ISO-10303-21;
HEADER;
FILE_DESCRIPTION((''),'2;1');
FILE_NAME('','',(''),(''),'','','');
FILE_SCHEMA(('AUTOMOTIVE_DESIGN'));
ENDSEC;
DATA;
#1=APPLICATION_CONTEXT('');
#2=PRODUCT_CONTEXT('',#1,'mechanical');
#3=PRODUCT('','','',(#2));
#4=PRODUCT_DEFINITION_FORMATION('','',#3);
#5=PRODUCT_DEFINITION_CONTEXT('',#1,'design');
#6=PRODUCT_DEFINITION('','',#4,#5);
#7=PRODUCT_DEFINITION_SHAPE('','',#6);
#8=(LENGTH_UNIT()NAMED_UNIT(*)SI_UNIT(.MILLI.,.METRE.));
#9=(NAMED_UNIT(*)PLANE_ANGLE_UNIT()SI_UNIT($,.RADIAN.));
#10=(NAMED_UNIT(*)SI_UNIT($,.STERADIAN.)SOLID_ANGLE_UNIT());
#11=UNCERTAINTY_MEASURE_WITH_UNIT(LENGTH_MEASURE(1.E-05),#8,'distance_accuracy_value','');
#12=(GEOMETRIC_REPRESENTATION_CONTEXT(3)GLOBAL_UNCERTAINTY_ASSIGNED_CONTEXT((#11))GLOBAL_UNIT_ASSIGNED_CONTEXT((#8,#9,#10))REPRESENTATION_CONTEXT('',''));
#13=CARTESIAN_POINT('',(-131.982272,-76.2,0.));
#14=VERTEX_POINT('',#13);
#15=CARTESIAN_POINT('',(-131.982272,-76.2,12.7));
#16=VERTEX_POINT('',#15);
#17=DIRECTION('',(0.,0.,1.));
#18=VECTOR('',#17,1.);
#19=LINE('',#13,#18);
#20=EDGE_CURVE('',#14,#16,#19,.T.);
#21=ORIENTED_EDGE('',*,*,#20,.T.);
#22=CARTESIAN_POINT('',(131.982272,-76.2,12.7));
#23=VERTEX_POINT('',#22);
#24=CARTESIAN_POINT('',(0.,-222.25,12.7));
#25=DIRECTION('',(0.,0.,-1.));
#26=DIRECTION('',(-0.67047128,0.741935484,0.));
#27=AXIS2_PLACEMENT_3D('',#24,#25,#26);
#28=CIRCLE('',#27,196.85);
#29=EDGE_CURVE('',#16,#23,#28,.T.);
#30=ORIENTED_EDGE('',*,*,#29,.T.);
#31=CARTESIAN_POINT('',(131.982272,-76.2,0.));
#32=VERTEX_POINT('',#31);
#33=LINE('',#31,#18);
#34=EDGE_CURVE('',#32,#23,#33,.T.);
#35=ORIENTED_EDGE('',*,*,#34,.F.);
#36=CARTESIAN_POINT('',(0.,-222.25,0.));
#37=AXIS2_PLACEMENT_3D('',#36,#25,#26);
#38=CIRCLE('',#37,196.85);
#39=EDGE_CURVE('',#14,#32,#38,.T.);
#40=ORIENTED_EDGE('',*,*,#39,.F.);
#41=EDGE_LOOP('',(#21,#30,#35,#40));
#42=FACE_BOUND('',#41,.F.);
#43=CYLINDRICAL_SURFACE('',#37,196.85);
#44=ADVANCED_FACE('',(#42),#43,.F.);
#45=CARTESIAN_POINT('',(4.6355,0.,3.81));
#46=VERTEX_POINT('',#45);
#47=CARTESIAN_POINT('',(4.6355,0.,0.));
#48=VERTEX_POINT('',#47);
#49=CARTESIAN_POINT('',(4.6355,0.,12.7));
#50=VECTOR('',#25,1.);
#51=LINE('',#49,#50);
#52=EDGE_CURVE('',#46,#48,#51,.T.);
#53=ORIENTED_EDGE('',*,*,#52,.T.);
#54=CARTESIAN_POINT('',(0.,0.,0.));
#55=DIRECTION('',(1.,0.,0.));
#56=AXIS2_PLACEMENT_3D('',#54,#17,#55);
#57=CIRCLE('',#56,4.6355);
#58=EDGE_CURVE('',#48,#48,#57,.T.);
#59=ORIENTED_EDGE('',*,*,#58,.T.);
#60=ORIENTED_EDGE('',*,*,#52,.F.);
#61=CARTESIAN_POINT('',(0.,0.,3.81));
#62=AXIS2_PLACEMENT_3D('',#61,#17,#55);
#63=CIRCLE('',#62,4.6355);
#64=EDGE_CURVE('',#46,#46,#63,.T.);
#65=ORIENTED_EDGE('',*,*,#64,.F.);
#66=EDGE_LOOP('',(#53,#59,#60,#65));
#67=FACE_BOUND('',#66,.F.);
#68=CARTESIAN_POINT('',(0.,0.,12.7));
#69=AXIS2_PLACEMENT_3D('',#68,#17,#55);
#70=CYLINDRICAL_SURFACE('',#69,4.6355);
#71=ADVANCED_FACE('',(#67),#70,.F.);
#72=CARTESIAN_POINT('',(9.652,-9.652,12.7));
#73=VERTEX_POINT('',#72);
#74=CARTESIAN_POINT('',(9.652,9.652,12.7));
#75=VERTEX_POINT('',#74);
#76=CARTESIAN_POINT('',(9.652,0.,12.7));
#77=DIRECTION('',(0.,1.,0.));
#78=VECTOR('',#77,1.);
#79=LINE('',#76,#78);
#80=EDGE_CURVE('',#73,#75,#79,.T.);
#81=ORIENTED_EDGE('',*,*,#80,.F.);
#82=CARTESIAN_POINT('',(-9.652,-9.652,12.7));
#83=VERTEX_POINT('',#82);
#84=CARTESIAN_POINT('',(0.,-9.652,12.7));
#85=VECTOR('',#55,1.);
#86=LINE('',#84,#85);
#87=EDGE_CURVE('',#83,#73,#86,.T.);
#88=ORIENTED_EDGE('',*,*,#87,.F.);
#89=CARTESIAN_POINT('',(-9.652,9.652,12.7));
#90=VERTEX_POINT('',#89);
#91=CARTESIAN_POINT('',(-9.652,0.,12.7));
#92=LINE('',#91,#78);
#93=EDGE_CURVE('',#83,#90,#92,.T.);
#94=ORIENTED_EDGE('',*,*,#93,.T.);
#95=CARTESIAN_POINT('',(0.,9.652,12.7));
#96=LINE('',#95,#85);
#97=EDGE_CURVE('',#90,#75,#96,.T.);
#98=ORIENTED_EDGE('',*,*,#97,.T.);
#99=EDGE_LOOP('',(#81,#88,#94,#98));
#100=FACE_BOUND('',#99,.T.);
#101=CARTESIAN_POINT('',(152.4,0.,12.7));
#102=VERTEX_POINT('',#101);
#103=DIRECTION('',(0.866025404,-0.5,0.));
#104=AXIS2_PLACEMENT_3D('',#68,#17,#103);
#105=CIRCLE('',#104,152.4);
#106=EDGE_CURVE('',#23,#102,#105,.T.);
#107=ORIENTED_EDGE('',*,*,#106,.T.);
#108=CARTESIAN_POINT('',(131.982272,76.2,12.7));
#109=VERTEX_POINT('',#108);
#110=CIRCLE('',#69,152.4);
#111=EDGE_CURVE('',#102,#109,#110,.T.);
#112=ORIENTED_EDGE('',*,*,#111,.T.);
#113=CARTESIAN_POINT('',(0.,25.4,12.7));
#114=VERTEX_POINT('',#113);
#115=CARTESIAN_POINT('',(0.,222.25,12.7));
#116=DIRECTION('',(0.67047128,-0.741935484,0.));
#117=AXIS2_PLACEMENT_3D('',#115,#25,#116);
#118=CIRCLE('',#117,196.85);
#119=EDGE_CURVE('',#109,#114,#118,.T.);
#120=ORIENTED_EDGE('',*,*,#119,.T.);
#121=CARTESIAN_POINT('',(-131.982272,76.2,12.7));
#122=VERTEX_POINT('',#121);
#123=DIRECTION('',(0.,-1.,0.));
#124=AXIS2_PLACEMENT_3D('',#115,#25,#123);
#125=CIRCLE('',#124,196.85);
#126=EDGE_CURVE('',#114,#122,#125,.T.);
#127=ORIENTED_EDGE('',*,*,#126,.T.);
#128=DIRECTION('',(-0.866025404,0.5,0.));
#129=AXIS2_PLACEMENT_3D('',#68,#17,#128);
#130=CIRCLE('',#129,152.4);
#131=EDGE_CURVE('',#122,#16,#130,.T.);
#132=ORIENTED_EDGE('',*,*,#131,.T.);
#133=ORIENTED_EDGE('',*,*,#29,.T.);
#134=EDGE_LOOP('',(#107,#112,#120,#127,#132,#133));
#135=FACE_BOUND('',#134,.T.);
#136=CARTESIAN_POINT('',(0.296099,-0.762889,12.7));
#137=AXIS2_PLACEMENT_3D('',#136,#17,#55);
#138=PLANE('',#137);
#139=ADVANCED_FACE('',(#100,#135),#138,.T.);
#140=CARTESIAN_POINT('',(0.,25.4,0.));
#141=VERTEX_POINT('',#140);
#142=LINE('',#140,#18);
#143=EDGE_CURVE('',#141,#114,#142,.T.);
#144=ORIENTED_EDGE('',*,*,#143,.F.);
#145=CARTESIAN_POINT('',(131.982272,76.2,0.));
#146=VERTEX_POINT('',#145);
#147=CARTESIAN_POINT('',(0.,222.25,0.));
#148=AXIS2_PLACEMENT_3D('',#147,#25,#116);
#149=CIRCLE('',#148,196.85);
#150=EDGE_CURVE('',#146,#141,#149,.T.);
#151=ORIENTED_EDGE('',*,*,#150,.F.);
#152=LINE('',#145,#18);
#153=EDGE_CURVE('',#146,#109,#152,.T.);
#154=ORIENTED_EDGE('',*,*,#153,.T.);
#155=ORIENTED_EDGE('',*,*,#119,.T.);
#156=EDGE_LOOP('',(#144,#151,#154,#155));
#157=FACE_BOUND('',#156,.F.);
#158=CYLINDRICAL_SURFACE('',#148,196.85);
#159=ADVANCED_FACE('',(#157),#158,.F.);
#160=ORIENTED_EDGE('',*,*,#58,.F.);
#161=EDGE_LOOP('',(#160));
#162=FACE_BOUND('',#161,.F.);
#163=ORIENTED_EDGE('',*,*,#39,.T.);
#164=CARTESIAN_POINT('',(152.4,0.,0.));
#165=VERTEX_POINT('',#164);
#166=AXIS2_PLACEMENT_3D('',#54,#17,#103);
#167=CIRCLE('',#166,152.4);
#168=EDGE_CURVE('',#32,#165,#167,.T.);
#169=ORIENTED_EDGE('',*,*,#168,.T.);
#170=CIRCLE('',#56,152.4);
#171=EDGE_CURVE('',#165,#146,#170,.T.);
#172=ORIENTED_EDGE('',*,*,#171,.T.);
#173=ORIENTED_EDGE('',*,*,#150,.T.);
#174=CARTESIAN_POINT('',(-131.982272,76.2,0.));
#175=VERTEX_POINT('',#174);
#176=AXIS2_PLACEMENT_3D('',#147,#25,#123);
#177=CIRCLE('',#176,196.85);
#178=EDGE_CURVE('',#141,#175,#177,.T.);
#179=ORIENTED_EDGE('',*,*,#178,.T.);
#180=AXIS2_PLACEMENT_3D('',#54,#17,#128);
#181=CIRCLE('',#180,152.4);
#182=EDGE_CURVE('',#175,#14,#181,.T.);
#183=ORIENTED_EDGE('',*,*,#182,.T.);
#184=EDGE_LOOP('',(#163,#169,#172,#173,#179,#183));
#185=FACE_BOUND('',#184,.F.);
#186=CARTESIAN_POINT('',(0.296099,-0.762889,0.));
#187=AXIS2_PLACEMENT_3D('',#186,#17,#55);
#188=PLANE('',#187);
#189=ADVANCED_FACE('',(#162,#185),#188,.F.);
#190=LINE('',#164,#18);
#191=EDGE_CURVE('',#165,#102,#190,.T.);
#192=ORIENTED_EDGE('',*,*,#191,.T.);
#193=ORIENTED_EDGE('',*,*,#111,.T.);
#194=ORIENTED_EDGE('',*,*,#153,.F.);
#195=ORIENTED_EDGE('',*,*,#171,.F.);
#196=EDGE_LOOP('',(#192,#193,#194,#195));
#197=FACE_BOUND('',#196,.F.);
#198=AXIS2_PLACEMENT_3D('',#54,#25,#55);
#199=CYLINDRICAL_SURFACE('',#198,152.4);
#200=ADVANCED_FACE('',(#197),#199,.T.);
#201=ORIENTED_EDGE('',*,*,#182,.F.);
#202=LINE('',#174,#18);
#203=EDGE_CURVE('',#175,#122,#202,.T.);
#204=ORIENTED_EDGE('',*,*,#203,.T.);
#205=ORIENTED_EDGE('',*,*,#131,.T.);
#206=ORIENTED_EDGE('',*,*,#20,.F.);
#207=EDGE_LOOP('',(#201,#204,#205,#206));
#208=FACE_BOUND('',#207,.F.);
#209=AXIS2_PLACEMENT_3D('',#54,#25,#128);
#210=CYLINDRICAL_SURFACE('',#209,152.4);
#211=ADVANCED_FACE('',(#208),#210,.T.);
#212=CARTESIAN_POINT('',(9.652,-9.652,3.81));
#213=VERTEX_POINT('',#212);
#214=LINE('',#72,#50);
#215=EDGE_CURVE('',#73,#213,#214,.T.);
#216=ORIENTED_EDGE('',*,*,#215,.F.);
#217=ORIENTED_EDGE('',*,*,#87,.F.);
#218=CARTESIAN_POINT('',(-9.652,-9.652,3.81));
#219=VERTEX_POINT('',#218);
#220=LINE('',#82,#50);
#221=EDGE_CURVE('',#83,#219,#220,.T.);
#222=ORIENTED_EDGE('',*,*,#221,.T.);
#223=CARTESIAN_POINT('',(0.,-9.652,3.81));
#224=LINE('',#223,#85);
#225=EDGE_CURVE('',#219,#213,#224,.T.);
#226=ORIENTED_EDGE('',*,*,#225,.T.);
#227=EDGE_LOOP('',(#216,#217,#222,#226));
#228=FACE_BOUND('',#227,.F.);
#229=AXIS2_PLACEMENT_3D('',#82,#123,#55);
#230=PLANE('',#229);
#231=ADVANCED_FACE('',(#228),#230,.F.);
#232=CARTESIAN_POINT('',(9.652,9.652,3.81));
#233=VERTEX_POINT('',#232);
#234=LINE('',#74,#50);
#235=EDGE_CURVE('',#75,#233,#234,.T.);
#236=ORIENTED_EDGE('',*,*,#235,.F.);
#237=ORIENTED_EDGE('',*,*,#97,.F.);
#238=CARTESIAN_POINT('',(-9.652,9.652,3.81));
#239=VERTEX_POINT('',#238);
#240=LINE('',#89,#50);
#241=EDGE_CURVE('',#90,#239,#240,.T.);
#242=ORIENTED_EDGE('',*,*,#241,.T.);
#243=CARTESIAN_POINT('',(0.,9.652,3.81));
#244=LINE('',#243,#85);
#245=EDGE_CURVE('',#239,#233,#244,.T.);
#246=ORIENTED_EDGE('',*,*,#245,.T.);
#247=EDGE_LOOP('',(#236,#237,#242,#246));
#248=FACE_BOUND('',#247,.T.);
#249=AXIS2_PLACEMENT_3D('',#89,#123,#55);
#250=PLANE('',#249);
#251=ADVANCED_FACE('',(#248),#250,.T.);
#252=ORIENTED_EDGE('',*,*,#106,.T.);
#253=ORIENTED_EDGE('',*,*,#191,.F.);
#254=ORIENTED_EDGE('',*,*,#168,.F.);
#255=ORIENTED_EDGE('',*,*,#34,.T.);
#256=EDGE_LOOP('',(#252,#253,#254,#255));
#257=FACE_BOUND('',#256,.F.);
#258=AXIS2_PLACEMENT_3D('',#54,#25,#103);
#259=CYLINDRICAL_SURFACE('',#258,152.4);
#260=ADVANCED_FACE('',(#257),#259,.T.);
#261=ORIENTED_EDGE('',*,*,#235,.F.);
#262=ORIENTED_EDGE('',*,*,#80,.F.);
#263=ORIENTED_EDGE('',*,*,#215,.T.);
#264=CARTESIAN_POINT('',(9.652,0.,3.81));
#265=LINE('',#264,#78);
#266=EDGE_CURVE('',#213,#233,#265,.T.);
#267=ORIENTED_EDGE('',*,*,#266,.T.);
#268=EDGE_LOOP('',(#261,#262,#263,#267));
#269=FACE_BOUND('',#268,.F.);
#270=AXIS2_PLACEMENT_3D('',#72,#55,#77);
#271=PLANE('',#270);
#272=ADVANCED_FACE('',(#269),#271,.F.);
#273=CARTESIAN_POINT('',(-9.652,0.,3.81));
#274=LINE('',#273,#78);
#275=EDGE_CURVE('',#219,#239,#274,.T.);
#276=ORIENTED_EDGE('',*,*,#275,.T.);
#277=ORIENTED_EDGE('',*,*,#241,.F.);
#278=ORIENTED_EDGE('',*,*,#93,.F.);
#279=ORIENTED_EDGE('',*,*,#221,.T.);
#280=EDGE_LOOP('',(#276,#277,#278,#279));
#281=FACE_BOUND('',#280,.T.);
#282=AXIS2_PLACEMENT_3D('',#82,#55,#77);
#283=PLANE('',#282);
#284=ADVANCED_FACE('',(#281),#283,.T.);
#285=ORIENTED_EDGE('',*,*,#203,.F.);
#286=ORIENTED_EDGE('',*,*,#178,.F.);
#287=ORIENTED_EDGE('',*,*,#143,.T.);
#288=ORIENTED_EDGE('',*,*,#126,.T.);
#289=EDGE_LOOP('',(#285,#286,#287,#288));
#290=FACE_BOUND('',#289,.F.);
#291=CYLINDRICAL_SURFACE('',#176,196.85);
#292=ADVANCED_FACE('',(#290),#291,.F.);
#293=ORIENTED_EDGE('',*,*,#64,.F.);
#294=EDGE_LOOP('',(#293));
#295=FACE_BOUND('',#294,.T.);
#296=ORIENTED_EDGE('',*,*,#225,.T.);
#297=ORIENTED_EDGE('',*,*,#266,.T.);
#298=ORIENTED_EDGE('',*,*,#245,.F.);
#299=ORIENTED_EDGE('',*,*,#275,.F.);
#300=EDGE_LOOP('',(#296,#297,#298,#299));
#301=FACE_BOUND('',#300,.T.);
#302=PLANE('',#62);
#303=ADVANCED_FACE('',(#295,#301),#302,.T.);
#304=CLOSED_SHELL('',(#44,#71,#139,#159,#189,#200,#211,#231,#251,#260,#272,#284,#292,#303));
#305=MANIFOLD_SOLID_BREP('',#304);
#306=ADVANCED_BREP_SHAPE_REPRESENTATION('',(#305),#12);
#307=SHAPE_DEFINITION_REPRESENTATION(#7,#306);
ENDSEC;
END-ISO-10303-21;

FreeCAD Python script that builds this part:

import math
import FreeCAD as App
import Part
import Sketcher
Q = App.Units.Quantity

doc = App.newDocument("Part")
body = doc.addObject("PartDesign::Body", "Body")

# Sketch on XY plane
sketch1 = body.newObject("Sketcher::SketchObject", "Sketch")
sketch1.AttachmentSupport = (doc.getObject("XY_Plane"), [""])
sketch1.MapMode = "FlatFace"
sketch1.addGeometry(Part.ArcOfCircle(Part.Circle(App.Vector(0, 0, 0), App.Vector(0, 0, 1), 152), math.radians(-30), math.radians(0)), False)
sketch1.addGeometry(Part.ArcOfCircle(Part.Circle(App.Vector(0, 0, 0), App.Vector(0, 0, 1), 152), math.radians(0), math.radians(30)), False)
sketch1.addGeometry(Part.ArcOfCircle(Part.Circle(App.Vector(0, 222, 0), App.Vector(0, 0, 1), 197), math.radians(-90), math.radians(-48)), False)
sketch1.addGeometry(Part.ArcOfCircle(Part.Circle(App.Vector(0, 222, 0), App.Vector(0, 0, 1), 197), math.radians(-132), math.radians(-90)), False)
sketch1.addGeometry(Part.ArcOfCircle(Part.Circle(App.Vector(0, 0, 0), App.Vector(0, 0, 1), 152), math.radians(150), math.radians(210)), False)
sketch1.addGeometry(Part.ArcOfCircle(Part.Circle(App.Vector(0, -222, 0), App.Vector(0, 0, 1), 197), math.radians(48), math.radians(132)), False)
sketch1.addConstraint(Sketcher.Constraint("Tangent", 0, 2, 1, 1))
sketch1.addConstraint(Sketcher.Constraint("Coincident", 1, 2, 2, 2))
sketch1.addConstraint(Sketcher.Constraint("Tangent", 2, 1, 3, 2))
sketch1.addConstraint(Sketcher.Constraint("Coincident", 3, 1, 4, 1))
sketch1.addConstraint(Sketcher.Constraint("Coincident", 4, 2, 5, 2))
sketch1.addConstraint(Sketcher.Constraint("Coincident", 5, 1, 0, 1))
sketch1.addConstraint(Sketcher.Constraint("Coincident", 0, 3, -1, 1))
sketch1.addConstraint(Sketcher.Constraint("Coincident", 4, 3, -1, 1))
sketch1.addConstraint(Sketcher.Constraint("Equal", 0, 1))
sketch1.addConstraint(Sketcher.Constraint("Equal", 2, 3))
sketch1.addConstraint(Sketcher.Constraint("Equal", 1, 4))
sketch1.addConstraint(Sketcher.Constraint("Equal", 3, 5))
sketch1.addConstraint(Sketcher.Constraint("Symmetric", 2, 3, 5, 3, -1, 1))
sketch1.addConstraint(Sketcher.Constraint("PointOnObject", 2, 3, -2))
sketch1.addConstraint(Sketcher.Constraint("PointOnObject", 0, 2, -1))
sketch1.addConstraint(Sketcher.Constraint("PointOnObject", 2, 1, -2))
sketch1.addConstraint(Sketcher.Constraint("Radius", 0, Q("6 in")))
sketch1.addConstraint(Sketcher.Constraint("Radius", 2, Q("7.75 in")))
sketch1.addConstraint(Sketcher.Constraint("DistanceY", -1, 1, 1, 2, Q("3 in")))
pad1 = body.newObject("PartDesign::Pad", "Pad")
pad1.Profile = sketch1
pad1.Length = Q("0.5 in")

# Sketch on XY plane
sketch2 = body.newObject("Sketcher::SketchObject", "Sketch001")
sketch2.AttachmentSupport = (doc.getObject("XY_Plane"), [""])
sketch2.MapMode = "FlatFace"
sketch2.AttachmentOffset = App.Placement(App.Vector(0, 0, 0.5 * 25.4), App.Rotation())
sketch2.addGeometry(Part.Circle(App.Vector(0, 0, 0), App.Vector(0, 0, 1), 4.6), False)
sketch2.addConstraint(Sketcher.Constraint("Coincident", 0, 3, -1, 1))
sketch2.addConstraint(Sketcher.Constraint("Diameter", 0, Q("0.365 in")))
pocket1 = body.newObject("PartDesign::Pocket", "Pocket")
pocket1.Profile = sketch2
pocket1.Type = "ThroughAll"

# Sketch on XY plane
sketch3 = body.newObject("Sketcher::SketchObject", "Sketch002")
sketch3.AttachmentSupport = (doc.getObject("XY_Plane"), [""])
sketch3.MapMode = "FlatFace"
sketch3.AttachmentOffset = App.Placement(App.Vector(0, 0, 0.5 * 25.4), App.Rotation())
sketch3.addGeometry(Part.LineSegment(App.Vector(-9.7, 9.7, 0), App.Vector(-9.7, -9.7, 0)), False)
sketch3.addGeometry(Part.LineSegment(App.Vector(-9.7, -9.7, 0), App.Vector(9.7, -9.7, 0)), False)
sketch3.addGeometry(Part.LineSegment(App.Vector(9.7, -9.7, 0), App.Vector(9.7, 9.7, 0)), False)
sketch3.addGeometry(Part.LineSegment(App.Vector(9.7, 9.7, 0), App.Vector(-9.7, 9.7, 0)), False)
sketch3.addGeometry(Part.Circle(App.Vector(0, 0, 0), App.Vector(0, 0, 1), 4.6), False)
sketch3.addConstraint(Sketcher.Constraint("Coincident", 0, 2, 1, 1))
sketch3.addConstraint(Sketcher.Constraint("Coincident", 1, 2, 2, 1))
sketch3.addConstraint(Sketcher.Constraint("Coincident", 2, 2, 3, 1))
sketch3.addConstraint(Sketcher.Constraint("Coincident", 3, 2, 0, 1))
sketch3.addConstraint(Sketcher.Constraint("Vertical", 0))
sketch3.addConstraint(Sketcher.Constraint("Horizontal", 1))
sketch3.addConstraint(Sketcher.Constraint("Vertical", 2))
sketch3.addConstraint(Sketcher.Constraint("Horizontal", 3))
sketch3.addConstraint(Sketcher.Constraint("Coincident", 4, 3, -1, 1))
sketch3.addConstraint(Sketcher.Constraint("Symmetric", 0, 2, 2, 2, -1, 1))
sketch3.addConstraint(Sketcher.Constraint("Equal", 3, 0))
sketch3.addConstraint(Sketcher.Constraint("Diameter", 4, Q("0.365 in")))
sketch3.addConstraint(Sketcher.Constraint("DistanceX", 1, 1, 1, 2, Q("0.76 in")))
pocket2 = body.newObject("PartDesign::Pocket", "Pocket001")
pocket2.Profile = sketch3
pocket2.Length = Q("0.35 in")

doc.recompute()
